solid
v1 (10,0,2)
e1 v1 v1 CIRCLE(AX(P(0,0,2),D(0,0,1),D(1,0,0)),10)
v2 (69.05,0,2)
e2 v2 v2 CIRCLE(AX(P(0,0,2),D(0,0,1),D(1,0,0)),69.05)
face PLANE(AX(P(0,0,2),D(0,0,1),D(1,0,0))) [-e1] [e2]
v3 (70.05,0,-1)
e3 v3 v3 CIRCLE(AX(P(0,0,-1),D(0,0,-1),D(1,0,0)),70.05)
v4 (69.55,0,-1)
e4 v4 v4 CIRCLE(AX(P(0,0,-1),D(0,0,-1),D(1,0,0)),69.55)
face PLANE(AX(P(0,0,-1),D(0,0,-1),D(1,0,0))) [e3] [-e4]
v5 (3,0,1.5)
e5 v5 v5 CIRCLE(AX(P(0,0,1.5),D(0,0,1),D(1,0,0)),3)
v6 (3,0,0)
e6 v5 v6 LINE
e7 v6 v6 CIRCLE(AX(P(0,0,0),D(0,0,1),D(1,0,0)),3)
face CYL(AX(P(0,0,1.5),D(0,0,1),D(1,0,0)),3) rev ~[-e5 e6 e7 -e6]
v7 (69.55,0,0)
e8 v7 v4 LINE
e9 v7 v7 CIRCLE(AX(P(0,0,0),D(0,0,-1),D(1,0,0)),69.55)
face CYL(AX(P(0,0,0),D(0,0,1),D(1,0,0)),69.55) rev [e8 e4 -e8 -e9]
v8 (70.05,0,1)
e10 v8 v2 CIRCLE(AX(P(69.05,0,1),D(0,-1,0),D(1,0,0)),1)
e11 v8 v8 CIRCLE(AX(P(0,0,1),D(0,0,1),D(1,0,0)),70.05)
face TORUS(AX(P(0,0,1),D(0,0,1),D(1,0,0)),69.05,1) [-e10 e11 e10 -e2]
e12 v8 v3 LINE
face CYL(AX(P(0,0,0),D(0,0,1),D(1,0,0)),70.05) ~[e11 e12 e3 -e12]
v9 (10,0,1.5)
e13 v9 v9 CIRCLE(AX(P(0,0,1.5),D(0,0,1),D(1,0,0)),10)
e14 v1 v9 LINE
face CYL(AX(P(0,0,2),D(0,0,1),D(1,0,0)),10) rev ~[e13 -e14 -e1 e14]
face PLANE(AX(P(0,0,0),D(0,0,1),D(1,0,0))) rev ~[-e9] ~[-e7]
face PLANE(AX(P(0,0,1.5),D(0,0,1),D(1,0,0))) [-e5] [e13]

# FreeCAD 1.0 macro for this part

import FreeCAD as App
import Part
import Sketcher

V = App.Vector


def edges_at(feature, points):
    """Names of the edges that pass closest to the given points."""
    edges = feature.Shape.Edges
    near = lambda p: min(range(len(edges)), key=lambda i: edges[i].distToShape(Part.Vertex(*p))[0])
    return sorted({f"Edge{near(p) + 1}" for p in points})

doc = App.newDocument("Part")
params = doc.addObject("Spreadsheet::Sheet", "Params")
for row, (alias, value) in enumerate([
    ("sketch1_diameter", "140.1 mm"),
    ("pad1_length", "2 mm"),
    ("fillet_radius", "1 mm"),
    ("sketch2_diameter", "140.1 mm"),
    ("sketch2_diameter2", "139.1 mm"),
    ("pad2_length", "1 mm"),
    ("sketch3_diameter", "20 mm"),
    ("pocket1_length", "0.5 mm"),
    ("sketch4_diameter", "6 mm"),
], start=1):
    params.set(f"A{row}", alias)
    params.set(f"B{row}", "=" + value)
    params.setAlias(f"B{row}", alias)

body = doc.addObject("PartDesign::Body", "Body")

# Sketch on XY plane
sketch1 = body.newObject("Sketcher::SketchObject", "Sketch")
sketch1.AttachmentSupport = (doc.getObject("XY_Plane"), [""])
sketch1.MapMode = "FlatFace"
sketch1.addGeometry(Part.Circle(V(0, 0, 0), V(0, 0, 1), 70), False)
sketch1.addConstraint([
    Sketcher.Constraint("Coincident", 0, 3, -1, 1),
    Sketcher.Constraint("Diameter", 0, 140.1),
])
sketch1.setExpression("Constraints[1]", "Params.sketch1_diameter")
pad1 = body.newObject("PartDesign::Pad", "Pad")
pad1.Profile = sketch1
pad1.setExpression("Length", "Params.pad1_length")
doc.recompute()

fillet = body.newObject("PartDesign::Fillet", "Fillet")
fillet.Base = (pad1, edges_at(pad1, [(-70.05, 0, 2)]))
fillet.setExpression("Radius", "Params.fillet_radius")

# Sketch on XY plane
sketch2 = body.newObject("Sketcher::SketchObject", "Sketch001")
sketch2.AttachmentSupport = (doc.getObject("XY_Plane"), [""])
sketch2.MapMode = "FlatFace"
sketch2.addGeometry([
    Part.Circle(V(0, 0, 0), V(0, 0, 1), 70),
    Part.Circle(V(0, 0, 0), V(0, 0, 1), 70),
], False)
sketch2.addConstraint([
    Sketcher.Constraint("Coincident", 0, 3, -1, 1),
    Sketcher.Constraint("Coincident", 1, 3, -1, 1),
    Sketcher.Constraint("Diameter", 0, 140.1),
    Sketcher.Constraint("Diameter", 1, 139.1),
])
sketch2.setExpression("Constraints[2]", "Params.sketch2_diameter")
sketch2.setExpression("Constraints[3]", "Params.sketch2_diameter2")
pad2 = body.newObject("PartDesign::Pad", "Pad001")
pad2.Profile = sketch2
pad2.setExpression("Length", "Params.pad2_length")
pad2.Reversed = True

# Sketch on XY plane
sketch3 = body.newObject("Sketcher::SketchObject", "Sketch002")
sketch3.AttachmentSupport = (doc.getObject("XY_Plane"), [""])
sketch3.MapMode = "FlatFace"
sketch3.AttachmentOffset = App.Placement(V(0, 0, 2), App.Rotation())
sketch3.addGeometry(Part.Circle(V(0, 0, 0), V(0, 0, 1), 10), False)
sketch3.addConstraint([
    Sketcher.Constraint("Coincident", 0, 3, -1, 1),
    Sketcher.Constraint("Diameter", 0, 20.0),
])
sketch3.setExpression("Constraints[1]", "Params.sketch3_diameter")
pocket1 = body.newObject("PartDesign::Pocket", "Pocket")
pocket1.Profile = sketch3
pocket1.setExpression("Length", "Params.pocket1_length")

# Sketch on XY plane
sketch4 = body.newObject("Sketcher::SketchObject", "Sketch003")
sketch4.AttachmentSupport = (doc.getObject("XY_Plane"), [""])
sketch4.MapMode = "FlatFace"
sketch4.AttachmentOffset = App.Placement(V(0, 0, 1.5), App.Rotation())
sketch4.addGeometry(Part.Circle(V(0, 0, 0), V(0, 0, 1), 3), False)
sketch4.addConstraint([
    Sketcher.Constraint("Coincident", 0, 3, -1, 1),
    Sketcher.Constraint("Diameter", 0, 6.0),
])
sketch4.setExpression("Constraints[1]", "Params.sketch4_diameter")
pocket2 = body.newObject("PartDesign::Pocket", "Pocket001")
pocket2.Profile = sketch4
pocket2.Type = "ThroughAll"

doc.recompute()
